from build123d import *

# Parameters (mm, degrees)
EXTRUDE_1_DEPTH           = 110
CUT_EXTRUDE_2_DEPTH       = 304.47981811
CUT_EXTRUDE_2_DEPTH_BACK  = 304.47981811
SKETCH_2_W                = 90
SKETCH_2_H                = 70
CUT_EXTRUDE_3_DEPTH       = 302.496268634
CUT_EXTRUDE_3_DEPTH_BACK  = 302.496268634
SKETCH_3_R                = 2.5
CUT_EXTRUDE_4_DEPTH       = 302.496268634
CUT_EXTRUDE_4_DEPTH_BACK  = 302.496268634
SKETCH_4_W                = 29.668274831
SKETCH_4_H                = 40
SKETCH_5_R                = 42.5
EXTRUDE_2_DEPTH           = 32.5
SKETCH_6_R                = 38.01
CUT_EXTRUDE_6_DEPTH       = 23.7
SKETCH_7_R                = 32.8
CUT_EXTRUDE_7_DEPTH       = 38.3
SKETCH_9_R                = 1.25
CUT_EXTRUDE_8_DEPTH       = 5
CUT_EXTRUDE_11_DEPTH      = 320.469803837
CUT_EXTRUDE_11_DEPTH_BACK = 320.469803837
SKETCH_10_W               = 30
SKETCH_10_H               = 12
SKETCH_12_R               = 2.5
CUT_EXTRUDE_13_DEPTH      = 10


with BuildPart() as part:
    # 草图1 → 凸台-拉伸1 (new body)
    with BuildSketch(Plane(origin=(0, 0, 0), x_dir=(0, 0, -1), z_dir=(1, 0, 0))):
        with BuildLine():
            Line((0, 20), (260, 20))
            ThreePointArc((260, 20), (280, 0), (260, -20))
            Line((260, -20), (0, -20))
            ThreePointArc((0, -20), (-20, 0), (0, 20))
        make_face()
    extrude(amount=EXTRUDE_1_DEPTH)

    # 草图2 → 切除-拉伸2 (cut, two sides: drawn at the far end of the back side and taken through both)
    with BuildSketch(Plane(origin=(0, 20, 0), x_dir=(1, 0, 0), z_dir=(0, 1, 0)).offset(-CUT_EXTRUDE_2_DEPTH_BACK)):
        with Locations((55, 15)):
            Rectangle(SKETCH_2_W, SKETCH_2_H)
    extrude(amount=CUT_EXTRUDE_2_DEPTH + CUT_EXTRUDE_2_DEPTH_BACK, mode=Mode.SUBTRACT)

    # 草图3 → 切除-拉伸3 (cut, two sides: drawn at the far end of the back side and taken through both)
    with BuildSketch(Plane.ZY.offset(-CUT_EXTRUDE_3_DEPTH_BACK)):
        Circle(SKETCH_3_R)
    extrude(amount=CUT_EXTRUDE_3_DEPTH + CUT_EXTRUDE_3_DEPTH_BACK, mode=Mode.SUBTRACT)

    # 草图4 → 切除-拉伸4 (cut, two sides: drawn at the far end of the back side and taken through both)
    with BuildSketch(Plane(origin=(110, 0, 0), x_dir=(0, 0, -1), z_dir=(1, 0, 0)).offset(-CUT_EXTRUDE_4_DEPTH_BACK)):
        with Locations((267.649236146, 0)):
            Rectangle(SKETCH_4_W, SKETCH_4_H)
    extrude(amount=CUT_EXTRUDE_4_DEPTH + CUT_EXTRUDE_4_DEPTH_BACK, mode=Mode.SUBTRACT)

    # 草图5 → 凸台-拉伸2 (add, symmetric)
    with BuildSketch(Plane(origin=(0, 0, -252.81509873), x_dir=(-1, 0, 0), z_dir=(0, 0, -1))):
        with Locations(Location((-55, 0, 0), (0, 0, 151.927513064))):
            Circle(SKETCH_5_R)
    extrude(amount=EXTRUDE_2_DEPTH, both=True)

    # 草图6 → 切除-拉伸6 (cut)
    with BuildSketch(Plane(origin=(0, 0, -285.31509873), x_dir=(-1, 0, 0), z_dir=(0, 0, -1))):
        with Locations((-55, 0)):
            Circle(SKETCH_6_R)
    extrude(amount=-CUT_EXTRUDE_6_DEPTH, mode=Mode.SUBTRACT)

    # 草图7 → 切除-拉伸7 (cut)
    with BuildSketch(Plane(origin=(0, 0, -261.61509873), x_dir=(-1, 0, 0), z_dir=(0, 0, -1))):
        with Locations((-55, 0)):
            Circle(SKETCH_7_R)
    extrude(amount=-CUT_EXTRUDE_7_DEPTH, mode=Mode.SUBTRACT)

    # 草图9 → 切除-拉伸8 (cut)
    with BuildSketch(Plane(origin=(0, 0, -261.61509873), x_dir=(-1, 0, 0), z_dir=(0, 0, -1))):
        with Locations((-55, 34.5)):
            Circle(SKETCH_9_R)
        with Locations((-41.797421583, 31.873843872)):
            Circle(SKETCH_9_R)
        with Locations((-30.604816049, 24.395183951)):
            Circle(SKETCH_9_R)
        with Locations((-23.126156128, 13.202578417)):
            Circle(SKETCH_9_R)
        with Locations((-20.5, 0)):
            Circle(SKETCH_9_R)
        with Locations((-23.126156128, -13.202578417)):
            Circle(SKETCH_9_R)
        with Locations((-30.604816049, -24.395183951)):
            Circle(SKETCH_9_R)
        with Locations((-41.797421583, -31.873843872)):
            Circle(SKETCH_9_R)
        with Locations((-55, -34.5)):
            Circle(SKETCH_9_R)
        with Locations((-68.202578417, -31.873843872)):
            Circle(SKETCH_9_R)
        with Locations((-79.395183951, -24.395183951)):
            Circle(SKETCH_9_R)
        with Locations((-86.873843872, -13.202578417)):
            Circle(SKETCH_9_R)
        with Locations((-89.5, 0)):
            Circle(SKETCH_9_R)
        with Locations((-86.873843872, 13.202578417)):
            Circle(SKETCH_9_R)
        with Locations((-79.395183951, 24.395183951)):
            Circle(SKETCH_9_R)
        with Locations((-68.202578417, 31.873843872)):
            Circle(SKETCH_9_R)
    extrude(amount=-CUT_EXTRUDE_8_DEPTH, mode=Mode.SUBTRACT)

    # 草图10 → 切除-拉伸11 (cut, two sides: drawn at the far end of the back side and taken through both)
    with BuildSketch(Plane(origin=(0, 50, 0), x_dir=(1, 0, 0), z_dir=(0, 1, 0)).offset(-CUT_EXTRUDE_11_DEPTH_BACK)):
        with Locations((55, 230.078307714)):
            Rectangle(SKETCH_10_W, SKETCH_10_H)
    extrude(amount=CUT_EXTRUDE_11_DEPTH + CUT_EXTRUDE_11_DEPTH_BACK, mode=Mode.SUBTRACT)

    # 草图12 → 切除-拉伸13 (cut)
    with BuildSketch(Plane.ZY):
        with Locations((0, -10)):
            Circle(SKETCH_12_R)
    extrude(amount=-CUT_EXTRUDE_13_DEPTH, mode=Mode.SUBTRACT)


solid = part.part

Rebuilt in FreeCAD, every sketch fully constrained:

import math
import FreeCAD as App
import Part
import Sketcher
Q = App.Units.Quantity

doc = App.newDocument("Part")
body = doc.addObject("PartDesign::Body", "Body")

# Sketch on YZ plane
sketch1 = doc.addObject("Sketcher::SketchObject", "Sketch")
body.addObject(sketch1)
sketch1.AttachmentSupport = (doc.YZ_Plane, [""])
sketch1.MapMode = "FlatFace"
sketch1.addGeometry([
    Part.LineSegment(App.Vector(20, -260, 0), App.Vector(20, 0, 0)),
    Part.ArcOfCircle(Part.Circle(App.Vector(0, 0, 0), App.Vector(0, 0, 1), 20), math.radians(0), math.radians(180)),
    Part.LineSegment(App.Vector(-20, 0, 0), App.Vector(-20, -260, 0)),
    Part.ArcOfCircle(Part.Circle(App.Vector(0, -260, 0), App.Vector(0, 0, 1), 20), math.radians(180), math.radians(360)),
], False)
sketch1.addConstraint([
    Sketcher.Constraint("Tangent", 0, 2, 1, 1),
    Sketcher.Constraint("Tangent", 1, 2, 2, 1),
    Sketcher.Constraint("Tangent", 2, 2, 3, 1),
    Sketcher.Constraint("Tangent", 3, 2, 0, 1),
    Sketcher.Constraint("Vertical", 0),
    Sketcher.Constraint("Vertical", 2),
    Sketcher.Constraint("Coincident", 1, 3, -1, 1),
    Sketcher.Constraint("Radius", 1, Q("20 mm")),
    Sketcher.Constraint("DistanceY", 0, 1, 0, 2, Q("260 mm")),
])
pad1 = doc.addObject("PartDesign::Pad", "Pad")
body.addObject(pad1)
pad1.Profile = sketch1
pad1.Length = 110

# Sketch on XZ plane
sketch2 = doc.addObject("Sketcher::SketchObject", "Sketch001")
body.addObject(sketch2)
sketch2.AttachmentSupport = (doc.XZ_Plane, [""])
sketch2.MapMode = "FlatFace"
sketch2.AttachmentOffset = App.Placement(App.Vector(0, 0, -20), App.Rotation())
sketch2.addGeometry([
    Part.LineSegment(App.Vector(10, -50, 0), App.Vector(10, 20, 0)),
    Part.LineSegment(App.Vector(10, 20, 0), App.Vector(100, 20, 0)),
    Part.LineSegment(App.Vector(100, 20, 0), App.Vector(100, -50, 0)),
    Part.LineSegment(App.Vector(100, -50, 0), App.Vector(10, -50, 0)),
], False)
sketch2.addConstraint([
    Sketcher.Constraint("Coincident", 0, 2, 1, 1),
    Sketcher.Constraint("Coincident", 1, 2, 2, 1),
    Sketcher.Constraint("Coincident", 2, 2, 3, 1),
    Sketcher.Constraint("Coincident", 3, 2, 0, 1),
    Sketcher.Constraint("Vertical", 0),
    Sketcher.Constraint("Horizontal", 1),
    Sketcher.Constraint("Vertical", 2),
    Sketcher.Constraint("Horizontal", 3),
    Sketcher.Constraint("DistanceX", 1, 1, 1, 2, Q("90 mm")),
    Sketcher.Constraint("DistanceY", 0, 1, 0, 2, Q("70 mm")),
    Sketcher.Constraint("DistanceX", -1, 1, 0, 2, Q("10 mm")),
    Sketcher.Constraint("DistanceY", -1, 1, 0, 2, Q("20 mm")),
])
pocket1 = doc.addObject("PartDesign::Pocket", "Pocket")
body.addObject(pocket1)
pocket1.Profile = sketch2
pocket1.Type = "ThroughAll"
pocket1.Midplane = True

# Sketch on YZ plane
sketch3 = doc.addObject("Sketcher::SketchObject", "Sketch002")
body.addObject(sketch3)
sketch3.AttachmentSupport = (doc.YZ_Plane, [""])
sketch3.MapMode = "FlatFace"
sketch3.addGeometry(Part.Circle(App.Vector(0, 0, 0), App.Vector(0, 0, 1), 2.5), False)
sketch3.addConstraint([
    Sketcher.Constraint("Coincident", 0, 3, -1, 1),
    Sketcher.Constraint("Diameter", 0, Q("5 mm")),
])
pocket2 = doc.addObject("PartDesign::Pocket", "Pocket001")
body.addObject(pocket2)
pocket2.Profile = sketch3
pocket2.Type = "ThroughAll"
pocket2.Midplane = True

# Sketch on YZ plane
sketch4 = doc.addObject("Sketcher::SketchObject", "Sketch003")
body.addObject(sketch4)
sketch4.AttachmentSupport = (doc.YZ_Plane, [""])
sketch4.MapMode = "FlatFace"
sketch4.AttachmentOffset = App.Placement(App.Vector(0, 0, 110), App.Rotation())
sketch4.addGeometry([
    Part.LineSegment(App.Vector(20, -252.815099, 0), App.Vector(-20, -252.815099, 0)),
    Part.LineSegment(App.Vector(-20, -252.815099, 0), App.Vector(-20, -282.483374, 0)),
    Part.LineSegment(App.Vector(-20, -282.483374, 0), App.Vector(20, -282.483374, 0)),
    Part.LineSegment(App.Vector(20, -282.483374, 0), App.Vector(20, -252.815099, 0)),
], False)
sketch4.addConstraint([
    Sketcher.Constraint("Coincident", 0, 2, 1, 1),
    Sketcher.Constraint("Coincident", 1, 2, 2, 1),
    Sketcher.Constraint("Coincident", 2, 2, 3, 1),
    Sketcher.Constraint("Coincident", 3, 2, 0, 1),
    Sketcher.Constraint("Horizontal", 0),
    Sketcher.Constraint("Vertical", 1),
    Sketcher.Constraint("Horizontal", 2),
    Sketcher.Constraint("Vertical", 3),
    Sketcher.Constraint("DistanceX", 0, 2, 0, 1, Q("40 mm")),
    Sketcher.Constraint("DistanceX", 0, 2, -1, 1, Q("20 mm")),
    Sketcher.Constraint("DistanceY", 0, 2, -1, 1, Q("252.815099 mm")),
    Sketcher.Constraint("DistanceY", 1, 2, 1, 1, Q("29.668275 mm")),
])
pocket3 = doc.addObject("PartDesign::Pocket", "Pocket002")
body.addObject(pocket3)
pocket3.Profile = sketch4
pocket3.Type = "ThroughAll"
pocket3.Midplane = True

# Sketch on XY plane
sketch5 = doc.addObject("Sketcher::SketchObject", "Sketch004")
body.addObject(sketch5)
sketch5.AttachmentSupport = (doc.XY_Plane, [""])
sketch5.MapMode = "FlatFace"
sketch5.AttachmentOffset = App.Placement(App.Vector(0, 0, -252.815099), App.Rotation())
sketch5.addGeometry(Part.Circle(App.Vector(55, 0, 0), App.Vector(0, 0, 1), 42.5), False)
sketch5.addConstraint([
    Sketcher.Constraint("PointOnObject", 0, 3, -1),
    Sketcher.Constraint("Diameter", 0, Q("85 mm")),
    Sketcher.Constraint("DistanceX", -1, 1, 0, 3, Q("55 mm")),
])
pad2 = doc.addObject("PartDesign::Pad", "Pad001")
body.addObject(pad2)
pad2.Profile = sketch5
pad2.Length = 65
pad2.Midplane = True

# Sketch on XY plane
sketch6 = doc.addObject("Sketcher::SketchObject", "Sketch005")
body.addObject(sketch6)
sketch6.AttachmentSupport = (doc.XY_Plane, [""])
sketch6.MapMode = "FlatFace"
sketch6.AttachmentOffset = App.Placement(App.Vector(0, 0, -285.315099), App.Rotation())
sketch6.addGeometry(Part.Circle(App.Vector(55, 0, 0), App.Vector(0, 0, 1), 38.01), False)
sketch6.addConstraint([
    Sketcher.Constraint("PointOnObject", 0, 3, -1),
    Sketcher.Constraint("Diameter", 0, Q("76.02 mm")),
    Sketcher.Constraint("DistanceX", -1, 1, 0, 3, Q("55 mm")),
])
pocket4 = doc.addObject("PartDesign::Pocket", "Pocket003")
body.addObject(pocket4)
pocket4.Profile = sketch6
pocket4.Length = 23.7
pocket4.Reversed = True

# Sketch on XY plane
sketch7 = doc.addObject("Sketcher::SketchObject", "Sketch006")
body.addObject(sketch7)
sketch7.AttachmentSupport = (doc.XY_Plane, [""])
sketch7.MapMode = "FlatFace"
sketch7.AttachmentOffset = App.Placement(App.Vector(0, 0, -261.615099), App.Rotation())
sketch7.addGeometry(Part.Circle(App.Vector(55, 0, 0), App.Vector(0, 0, 1), 32.8), False)
sketch7.addConstraint([
    Sketcher.Constraint("PointOnObject", 0, 3, -1),
    Sketcher.Constraint("Diameter", 0, Q("65.6 mm")),
    Sketcher.Constraint("DistanceX", -1, 1, 0, 3, Q("55 mm")),
])
pocket5 = doc.addObject("PartDesign::Pocket", "Pocket004")
body.addObject(pocket5)
pocket5.Profile = sketch7
pocket5.Length = 38.3
pocket5.Reversed = True

# Sketch on XY plane
sketch8 = doc.addObject("Sketcher::SketchObject", "Sketch007")
body.addObject(sketch8)
sketch8.AttachmentSupport = (doc.XY_Plane, [""])
sketch8.MapMode = "FlatFace"
sketch8.AttachmentOffset = App.Placement(App.Vector(0, 0, -261.615099), App.Rotation())
sketch8.addGeometry([
    Part.Circle(App.Vector(55, 34.5, 0), App.Vector(0, 0, 1), 1.25),  # 0
    Part.Circle(App.Vector(41.797422, 31.873844, 0), App.Vector(0, 0, 1), 1.25),  # 1
    Part.Circle(App.Vector(30.604816, 24.395184, 0), App.Vector(0, 0, 1), 1.25),  # 2
    Part.Circle(App.Vector(23.126156, 13.202578, 0), App.Vector(0, 0, 1), 1.25),  # 3
    Part.Circle(App.Vector(20.5, 0, 0), App.Vector(0, 0, 1), 1.25),  # 4
    Part.Circle(App.Vector(23.126156, -13.202578, 0), App.Vector(0, 0, 1), 1.25),  # 5
    Part.Circle(App.Vector(30.604816, -24.395184, 0), App.Vector(0, 0, 1), 1.25),  # 6
    Part.Circle(App.Vector(41.797422, -31.873844, 0), App.Vector(0, 0, 1), 1.25),  # 7
    Part.Circle(App.Vector(55, -34.5, 0), App.Vector(0, 0, 1), 1.25),  # 8
    Part.Circle(App.Vector(68.202578, -31.873844, 0), App.Vector(0, 0, 1), 1.25),  # 9
    Part.Circle(App.Vector(79.395184, -24.395184, 0), App.Vector(0, 0, 1), 1.25),  # 10
    Part.Circle(App.Vector(86.873844, -13.202578, 0), App.Vector(0, 0, 1), 1.25),  # 11
    Part.Circle(App.Vector(89.5, 0, 0), App.Vector(0, 0, 1), 1.25),  # 12
    Part.Circle(App.Vector(86.873844, 13.202578, 0), App.Vector(0, 0, 1), 1.25),  # 13
    Part.Circle(App.Vector(79.395184, 24.395184, 0), App.Vector(0, 0, 1), 1.25),  # 14
    Part.Circle(App.Vector(68.202578, 31.873844, 0), App.Vector(0, 0, 1), 1.25),  # 15
], False)
sketch8.addConstraint([
    Sketcher.Constraint("Equal", 0, 1),
    Sketcher.Constraint("Equal", 1, 2),
    Sketcher.Constraint("Equal", 2, 3),
    Sketcher.Constraint("Equal", 3, 4),
    Sketcher.Constraint("Equal", 4, 5),
    Sketcher.Constraint("Equal", 5, 6),
    Sketcher.Constraint("Equal", 6, 7),
    Sketcher.Constraint("Equal", 7, 8),
    Sketcher.Constraint("Equal", 8, 9),
    Sketcher.Constraint("Equal", 9, 10),
    Sketcher.Constraint("Equal", 10, 11),
    Sketcher.Constraint("Equal", 11, 12),
    Sketcher.Constraint("Equal", 12, 13),
    Sketcher.Constraint("Equal", 13, 14),
    Sketcher.Constraint("Equal", 14, 15),
    Sketcher.Constraint("Symmetric", 3, 3, 5, 3, -1),
    Sketcher.Constraint("Symmetric", 2, 3, 6, 3, -1),
    Sketcher.Constraint("Symmetric", 1, 3, 7, 3, -1),
    Sketcher.Constraint("Symmetric", 0, 3, 8, 3, -1),
    Sketcher.Constraint("Symmetric", 11, 3, 13, 3, -1),
    Sketcher.Constraint("Symmetric", 10, 3, 14, 3, -1),
    Sketcher.Constraint("Symmetric", 9, 3, 15, 3, -1),
    Sketcher.Constraint("PointOnObject", 4, 3, -1),
    Sketcher.Constraint("PointOnObject", 12, 3, -1),
    Sketcher.Constraint("Horizontal", 7, 3, 9, 3),
    Sketcher.Constraint("Horizontal", 6, 3, 10, 3),
    Sketcher.Constraint("Horizontal", 5, 3, 11, 3),
    Sketcher.Constraint("Diameter", 0, Q("2.5 mm")),
    Sketcher.Constraint("DistanceX", -1, 1, 0, 3, Q("55 mm")),
    Sketcher.Constraint("DistanceY", -1, 1, 0, 3, Q("34.5 mm")),
    Sketcher.Constraint("DistanceX", -1, 1, 4, 3, Q("20.5 mm")),
    Sketcher.Constraint("DistanceX", -1, 1, 12, 3, Q("89.5 mm")),
    Sketcher.Constraint("DistanceX", -1, 1, 1, 3, Q("41.797422 mm")),
    Sketcher.Constraint("DistanceY", -1, 1, 3, 3, Q("13.202578 mm")),
    Sketcher.Constraint("DistanceX", -1, 1, 9, 3, Q("68.202578 mm")),
    Sketcher.Constraint("DistanceY", 2, 3, 1, 3, Q("7.47866 mm")),
    Sketcher.Constraint("DistanceX", 3, 3, 2, 3, Q("7.47866 mm")),
    Sketcher.Constraint("DistanceX", 10, 3, 11, 3, Q("7.47866 mm")),
    Sketcher.Constraint("DistanceY", -1, 1, 1, 3, Q("31.873844 mm")),
    Sketcher.Constraint("DistanceX", -1, 1, 2, 3, Q("30.604816 mm")),
    Sketcher.Constraint("DistanceX", -1, 1, 10, 3, Q("79.395184 mm")),
])
pocket6 = doc.addObject("PartDesign::Pocket", "Pocket005")
body.addObject(pocket6)
pocket6.Profile = sketch8
pocket6.Length = 5
pocket6.Reversed = True

# Sketch on XZ plane
sketch9 = doc.addObject("Sketcher::SketchObject", "Sketch008")
body.addObject(sketch9)
sketch9.AttachmentSupport = (doc.XZ_Plane, [""])
sketch9.MapMode = "FlatFace"
sketch9.AttachmentOffset = App.Placement(App.Vector(0, 0, -50), App.Rotation())
sketch9.addGeometry([
    Part.LineSegment(App.Vector(40, -236.078308, 0), App.Vector(40, -224.078308, 0)),
    Part.LineSegment(App.Vector(40, -224.078308, 0), App.Vector(70, -224.078308, 0)),
    Part.LineSegment(App.Vector(70, -224.078308, 0), App.Vector(70, -236.078308, 0)),
    Part.LineSegment(App.Vector(70, -236.078308, 0), App.Vector(40, -236.078308, 0)),
], False)
sketch9.addConstraint([
    Sketcher.Constraint("Coincident", 0, 2, 1, 1),
    Sketcher.Constraint("Coincident", 1, 2, 2, 1),
    Sketcher.Constraint("Coincident", 2, 2, 3, 1),
    Sketcher.Constraint("Coincident", 3, 2, 0, 1),
    Sketcher.Constraint("Vertical", 0),
    Sketcher.Constraint("Horizontal", 1),
    Sketcher.Constraint("Vertical", 2),
    Sketcher.Constraint("Horizontal", 3),
    Sketcher.Constraint("DistanceX", 1, 1, 1, 2, Q("30 mm")),
    Sketcher.Constraint("DistanceY", 0, 1, 0, 2, Q("12 mm")),
    Sketcher.Constraint("DistanceX", -1, 1, 0, 2, Q("40 mm")),
    Sketcher.Constraint("DistanceY", 0, 2, -1, 1, Q("224.078308 mm")),
])
pocket7 = doc.addObject("PartDesign::Pocket", "Pocket006")
body.addObject(pocket7)
pocket7.Profile = sketch9
pocket7.Type = "ThroughAll"
pocket7.Midplane = True

# Sketch on YZ plane
sketch10 = doc.addObject("Sketcher::SketchObject", "Sketch009")
body.addObject(sketch10)
sketch10.AttachmentSupport = (doc.YZ_Plane, [""])
sketch10.MapMode = "FlatFace"
sketch10.addGeometry(Part.Circle(App.Vector(-10, 0, 0), App.Vector(0, 0, 1), 2.5), False)
sketch10.addConstraint([
    Sketcher.Constraint("PointOnObject", 0, 3, -1),
    Sketcher.Constraint("Diameter", 0, Q("5 mm")),
    Sketcher.Constraint("DistanceX", 0, 3, -1, 1, Q("10 mm")),
])
pocket8 = doc.addObject("PartDesign::Pocket", "Pocket007")
body.addObject(pocket8)
pocket8.Profile = sketch10
pocket8.Length = 10
pocket8.Reversed = True

doc.recompute()
